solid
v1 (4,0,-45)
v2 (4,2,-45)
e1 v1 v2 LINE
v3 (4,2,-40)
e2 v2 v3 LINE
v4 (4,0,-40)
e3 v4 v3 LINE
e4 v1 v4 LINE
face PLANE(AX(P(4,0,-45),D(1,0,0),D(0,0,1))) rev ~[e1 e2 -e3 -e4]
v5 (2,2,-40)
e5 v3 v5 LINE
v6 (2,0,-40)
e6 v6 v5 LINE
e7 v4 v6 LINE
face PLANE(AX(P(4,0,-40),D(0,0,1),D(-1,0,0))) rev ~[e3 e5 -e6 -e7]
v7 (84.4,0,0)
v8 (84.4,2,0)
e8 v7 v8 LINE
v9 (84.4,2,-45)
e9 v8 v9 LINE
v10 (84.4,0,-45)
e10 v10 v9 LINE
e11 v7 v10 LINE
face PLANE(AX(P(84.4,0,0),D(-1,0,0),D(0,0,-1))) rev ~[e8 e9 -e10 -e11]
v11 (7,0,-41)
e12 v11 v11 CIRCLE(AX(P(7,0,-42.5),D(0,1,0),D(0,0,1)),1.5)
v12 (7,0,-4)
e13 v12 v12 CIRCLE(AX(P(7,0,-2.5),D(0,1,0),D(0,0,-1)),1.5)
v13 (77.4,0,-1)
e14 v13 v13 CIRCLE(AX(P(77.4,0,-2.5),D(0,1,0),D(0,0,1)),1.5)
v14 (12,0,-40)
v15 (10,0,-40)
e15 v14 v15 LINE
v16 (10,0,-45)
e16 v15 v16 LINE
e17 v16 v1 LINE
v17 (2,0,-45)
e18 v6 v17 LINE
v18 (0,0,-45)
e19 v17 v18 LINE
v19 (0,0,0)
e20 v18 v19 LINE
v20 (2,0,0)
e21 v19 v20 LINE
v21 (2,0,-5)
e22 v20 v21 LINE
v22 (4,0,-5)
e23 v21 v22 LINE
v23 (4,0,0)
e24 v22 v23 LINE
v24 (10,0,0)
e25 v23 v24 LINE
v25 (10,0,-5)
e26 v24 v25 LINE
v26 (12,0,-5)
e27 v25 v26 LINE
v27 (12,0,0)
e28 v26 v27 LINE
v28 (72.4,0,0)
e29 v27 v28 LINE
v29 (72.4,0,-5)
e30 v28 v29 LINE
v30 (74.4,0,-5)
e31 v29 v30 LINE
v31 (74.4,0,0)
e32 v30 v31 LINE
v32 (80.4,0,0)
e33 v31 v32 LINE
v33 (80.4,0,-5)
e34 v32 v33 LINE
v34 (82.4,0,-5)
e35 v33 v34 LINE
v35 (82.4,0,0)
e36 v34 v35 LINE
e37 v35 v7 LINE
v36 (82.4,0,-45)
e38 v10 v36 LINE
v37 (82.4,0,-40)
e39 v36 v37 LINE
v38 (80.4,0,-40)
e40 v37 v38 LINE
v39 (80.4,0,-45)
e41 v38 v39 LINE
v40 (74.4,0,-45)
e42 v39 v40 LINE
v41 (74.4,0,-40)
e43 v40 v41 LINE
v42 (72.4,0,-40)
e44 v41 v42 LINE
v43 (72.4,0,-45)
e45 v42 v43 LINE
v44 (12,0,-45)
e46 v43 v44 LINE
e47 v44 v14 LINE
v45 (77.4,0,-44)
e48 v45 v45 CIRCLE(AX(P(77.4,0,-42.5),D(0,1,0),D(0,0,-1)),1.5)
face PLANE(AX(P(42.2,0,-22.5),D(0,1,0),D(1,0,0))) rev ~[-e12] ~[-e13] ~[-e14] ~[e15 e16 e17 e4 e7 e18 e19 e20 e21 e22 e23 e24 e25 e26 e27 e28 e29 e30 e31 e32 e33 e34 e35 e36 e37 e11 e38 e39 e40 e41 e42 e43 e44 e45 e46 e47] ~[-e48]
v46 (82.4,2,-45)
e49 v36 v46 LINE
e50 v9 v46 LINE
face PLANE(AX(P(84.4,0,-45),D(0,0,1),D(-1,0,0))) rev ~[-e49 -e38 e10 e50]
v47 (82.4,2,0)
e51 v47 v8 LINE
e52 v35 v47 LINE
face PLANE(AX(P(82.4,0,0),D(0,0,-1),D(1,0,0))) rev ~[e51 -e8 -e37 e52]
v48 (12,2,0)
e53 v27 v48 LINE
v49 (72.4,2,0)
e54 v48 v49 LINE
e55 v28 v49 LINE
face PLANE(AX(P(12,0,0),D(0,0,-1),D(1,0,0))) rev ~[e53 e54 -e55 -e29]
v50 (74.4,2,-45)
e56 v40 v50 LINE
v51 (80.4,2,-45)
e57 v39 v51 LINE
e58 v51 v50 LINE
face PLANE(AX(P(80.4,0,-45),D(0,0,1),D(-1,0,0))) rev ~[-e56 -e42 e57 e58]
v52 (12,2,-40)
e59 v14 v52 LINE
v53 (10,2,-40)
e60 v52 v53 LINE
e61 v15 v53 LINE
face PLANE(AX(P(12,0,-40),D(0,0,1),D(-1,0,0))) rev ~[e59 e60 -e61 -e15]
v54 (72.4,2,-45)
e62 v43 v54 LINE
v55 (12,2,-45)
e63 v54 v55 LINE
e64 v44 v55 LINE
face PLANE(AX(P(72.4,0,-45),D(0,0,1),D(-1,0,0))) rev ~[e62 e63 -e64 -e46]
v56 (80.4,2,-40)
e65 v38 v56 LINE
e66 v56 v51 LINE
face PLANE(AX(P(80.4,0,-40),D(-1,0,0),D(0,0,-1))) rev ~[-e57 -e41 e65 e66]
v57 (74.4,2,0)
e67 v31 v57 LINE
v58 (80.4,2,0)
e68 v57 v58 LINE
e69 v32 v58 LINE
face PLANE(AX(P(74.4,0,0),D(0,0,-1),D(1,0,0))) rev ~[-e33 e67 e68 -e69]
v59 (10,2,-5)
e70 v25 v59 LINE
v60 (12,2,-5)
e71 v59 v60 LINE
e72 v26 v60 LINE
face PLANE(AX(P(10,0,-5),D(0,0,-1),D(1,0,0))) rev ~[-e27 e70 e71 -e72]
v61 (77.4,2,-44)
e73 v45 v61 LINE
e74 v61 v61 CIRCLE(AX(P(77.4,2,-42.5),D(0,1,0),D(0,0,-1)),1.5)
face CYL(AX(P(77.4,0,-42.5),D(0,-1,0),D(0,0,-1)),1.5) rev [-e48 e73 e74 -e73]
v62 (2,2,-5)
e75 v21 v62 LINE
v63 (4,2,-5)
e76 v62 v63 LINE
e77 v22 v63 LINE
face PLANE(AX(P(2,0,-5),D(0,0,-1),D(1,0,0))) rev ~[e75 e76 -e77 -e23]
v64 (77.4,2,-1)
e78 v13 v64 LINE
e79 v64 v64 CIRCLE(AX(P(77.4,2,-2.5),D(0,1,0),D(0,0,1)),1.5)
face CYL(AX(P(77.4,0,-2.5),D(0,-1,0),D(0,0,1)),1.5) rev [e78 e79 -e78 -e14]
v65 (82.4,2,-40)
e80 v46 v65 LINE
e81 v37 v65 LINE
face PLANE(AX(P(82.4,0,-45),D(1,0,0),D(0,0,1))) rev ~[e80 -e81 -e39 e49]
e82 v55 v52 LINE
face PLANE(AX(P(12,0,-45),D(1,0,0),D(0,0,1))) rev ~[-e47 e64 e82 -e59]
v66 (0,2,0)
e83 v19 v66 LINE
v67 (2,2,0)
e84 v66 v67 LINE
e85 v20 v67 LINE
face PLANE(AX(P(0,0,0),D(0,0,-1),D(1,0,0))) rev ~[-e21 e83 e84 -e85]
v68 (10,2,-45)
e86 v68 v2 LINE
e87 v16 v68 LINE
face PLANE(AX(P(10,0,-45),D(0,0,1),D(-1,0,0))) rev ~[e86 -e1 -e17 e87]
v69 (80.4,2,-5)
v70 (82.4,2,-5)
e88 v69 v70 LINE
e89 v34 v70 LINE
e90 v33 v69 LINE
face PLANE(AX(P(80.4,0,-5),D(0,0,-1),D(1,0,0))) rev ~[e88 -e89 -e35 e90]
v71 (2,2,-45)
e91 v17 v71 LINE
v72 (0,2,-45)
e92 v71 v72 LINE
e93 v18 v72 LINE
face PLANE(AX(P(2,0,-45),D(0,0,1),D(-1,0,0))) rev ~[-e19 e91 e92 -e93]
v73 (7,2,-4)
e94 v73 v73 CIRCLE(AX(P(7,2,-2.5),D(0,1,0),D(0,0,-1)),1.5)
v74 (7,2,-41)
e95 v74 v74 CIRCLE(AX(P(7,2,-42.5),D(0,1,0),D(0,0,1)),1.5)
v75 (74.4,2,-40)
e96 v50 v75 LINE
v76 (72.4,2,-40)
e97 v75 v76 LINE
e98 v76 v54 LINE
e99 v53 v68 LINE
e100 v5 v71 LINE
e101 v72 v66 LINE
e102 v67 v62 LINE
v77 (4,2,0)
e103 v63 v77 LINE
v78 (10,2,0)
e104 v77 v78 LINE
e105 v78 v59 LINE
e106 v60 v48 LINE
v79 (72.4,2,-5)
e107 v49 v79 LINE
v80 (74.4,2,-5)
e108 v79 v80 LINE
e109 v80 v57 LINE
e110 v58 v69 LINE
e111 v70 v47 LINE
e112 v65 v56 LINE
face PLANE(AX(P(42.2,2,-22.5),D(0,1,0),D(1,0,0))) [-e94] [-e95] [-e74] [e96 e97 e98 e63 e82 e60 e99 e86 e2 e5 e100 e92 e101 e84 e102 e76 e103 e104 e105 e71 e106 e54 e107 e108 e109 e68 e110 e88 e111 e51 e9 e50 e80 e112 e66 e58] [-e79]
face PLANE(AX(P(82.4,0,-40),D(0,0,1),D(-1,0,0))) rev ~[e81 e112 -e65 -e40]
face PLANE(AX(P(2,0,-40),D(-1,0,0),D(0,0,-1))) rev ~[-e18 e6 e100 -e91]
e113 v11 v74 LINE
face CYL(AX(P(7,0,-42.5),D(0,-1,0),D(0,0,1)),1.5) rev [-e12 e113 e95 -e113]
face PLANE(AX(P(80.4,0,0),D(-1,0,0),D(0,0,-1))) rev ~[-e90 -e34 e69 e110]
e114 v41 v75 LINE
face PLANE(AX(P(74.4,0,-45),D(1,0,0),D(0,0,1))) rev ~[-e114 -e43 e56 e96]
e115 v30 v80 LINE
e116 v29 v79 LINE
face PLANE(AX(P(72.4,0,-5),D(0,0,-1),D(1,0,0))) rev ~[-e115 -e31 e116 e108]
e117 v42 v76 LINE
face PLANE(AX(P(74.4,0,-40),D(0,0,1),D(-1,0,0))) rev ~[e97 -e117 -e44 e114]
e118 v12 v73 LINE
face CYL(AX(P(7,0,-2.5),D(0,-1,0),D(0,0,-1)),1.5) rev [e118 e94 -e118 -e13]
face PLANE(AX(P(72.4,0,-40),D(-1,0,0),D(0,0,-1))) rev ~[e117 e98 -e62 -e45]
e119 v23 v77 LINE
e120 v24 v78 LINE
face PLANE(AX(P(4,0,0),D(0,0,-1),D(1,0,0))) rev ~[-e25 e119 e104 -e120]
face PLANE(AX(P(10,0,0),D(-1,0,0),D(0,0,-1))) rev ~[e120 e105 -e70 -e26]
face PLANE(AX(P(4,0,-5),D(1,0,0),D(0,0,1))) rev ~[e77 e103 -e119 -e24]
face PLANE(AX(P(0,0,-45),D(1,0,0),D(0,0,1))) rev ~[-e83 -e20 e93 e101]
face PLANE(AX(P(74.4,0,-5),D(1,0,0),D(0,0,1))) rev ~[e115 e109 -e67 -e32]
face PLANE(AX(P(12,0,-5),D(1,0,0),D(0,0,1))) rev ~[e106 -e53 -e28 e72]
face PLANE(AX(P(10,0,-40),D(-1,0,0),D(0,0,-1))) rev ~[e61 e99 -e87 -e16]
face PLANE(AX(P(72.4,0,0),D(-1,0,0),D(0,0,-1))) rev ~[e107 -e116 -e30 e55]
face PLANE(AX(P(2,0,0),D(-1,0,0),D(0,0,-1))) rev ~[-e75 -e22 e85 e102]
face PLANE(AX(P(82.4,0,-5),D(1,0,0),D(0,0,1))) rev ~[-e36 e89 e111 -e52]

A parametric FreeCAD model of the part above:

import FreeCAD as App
import Part
import Sketcher
from FreeCAD import Vector


def add_polygon(sketch, points):
    """Adds a closed chain of lines whose ends are joined by coincident constraints."""
    first, n = sketch.GeometryCount, len(points)
    for a, b in zip(points, points[1:] + points[:1]):
        sketch.addGeometry(Part.LineSegment(App.Vector(*a, 0), App.Vector(*b, 0)), False)
    for i in range(n):
        sketch.addConstraint(Sketcher.Constraint("Coincident", first + i, 2, first + (i + 1) % n, 1))

doc = App.newDocument("Part")
body = doc.addObject("PartDesign::Body", "Body")

sketch1 = body.newObject("Sketcher::SketchObject", "Sketch")
sketch1.AttachmentSupport = (doc.getObject("XZ_Plane"), [""])
sketch1.MapMode = "FlatFace"
add_polygon(sketch1, [(0, 0), (2, 0), (2, -5), (4, -5), (4, 0), (10, 0), (10, -5), (12, -5), (12, 0), (72.4, 0), (72.4, -5), (74.4, -5), (74.4, 0), (80.4, 0), (80.4, -5), (82.4, -5), (82.4, 0), (84.4, 0), (84.4, -45), (82.4, -45), (82.4, -40), (80.4, -40), (80.4, -45), (74.4, -45), (74.4, -40), (72.4, -40), (72.4, -45), (12, -45), (12, -40), (10, -40), (10, -45), (4, -45), (4, -40), (2, -40), (2, -45), (0, -45)])
sketch1.addGeometry(Part.Circle(Vector(7, -2.5, 0), Vector(0, 0, 1), 1.5), False)
sketch1.addGeometry(Part.Circle(Vector(77.4, -2.5, 0), Vector(0, 0, 1), 1.5), False)
sketch1.addGeometry(Part.Circle(Vector(7, -42.5, 0), Vector(0, 0, 1), 1.5), False)
sketch1.addGeometry(Part.Circle(Vector(77.4, -42.5, 0), Vector(0, 0, 1), 1.5), False)
sketch1.addConstraint([
    Sketcher.Constraint("Horizontal", 0),
    Sketcher.Constraint("Vertical", 1),
    Sketcher.Constraint("Horizontal", 2),
    Sketcher.Constraint("Vertical", 3),
    Sketcher.Constraint("Horizontal", 4),
    Sketcher.Constraint("Vertical", 5),
    Sketcher.Constraint("Horizontal", 6),
    Sketcher.Constraint("Vertical", 7),
    Sketcher.Constraint("Horizontal", 8),
    Sketcher.Constraint("Vertical", 9),
    Sketcher.Constraint("Horizontal", 10),
    Sketcher.Constraint("Vertical", 11),
    Sketcher.Constraint("Horizontal", 12),
    Sketcher.Constraint("Vertical", 13),
    Sketcher.Constraint("Horizontal", 14),
    Sketcher.Constraint("Vertical", 15),
    Sketcher.Constraint("Horizontal", 16),
    Sketcher.Constraint("Vertical", 17),
    Sketcher.Constraint("Horizontal", 18),
    Sketcher.Constraint("Vertical", 19),
    Sketcher.Constraint("Horizontal", 20),
    Sketcher.Constraint("Vertical", 21),
    Sketcher.Constraint("Horizontal", 22),
    Sketcher.Constraint("Vertical", 23),
    Sketcher.Constraint("Horizontal", 24),
    Sketcher.Constraint("Vertical", 25),
    Sketcher.Constraint("Horizontal", 26),
    Sketcher.Constraint("Vertical", 27),
    Sketcher.Constraint("Horizontal", 28),
    Sketcher.Constraint("Vertical", 29),
    Sketcher.Constraint("Horizontal", 30),
    Sketcher.Constraint("Vertical", 31),
    Sketcher.Constraint("Horizontal", 32),
    Sketcher.Constraint("Vertical", 33),
    Sketcher.Constraint("Horizontal", 34),
    Sketcher.Constraint("Vertical", 35),
    Sketcher.Constraint("Coincident", 35, 2, -1, 1),
    Sketcher.Constraint("Equal", 36, 37),
    Sketcher.Constraint("Equal", 37, 38),
    Sketcher.Constraint("Equal", 38, 39),
    Sketcher.Constraint("PointOnObject", 3, 2, -1),
    Sketcher.Constraint("PointOnObject", 7, 2, -1),
    Sketcher.Constraint("PointOnObject", 11, 2, -1),
    Sketcher.Constraint("PointOnObject", 15, 2, -1),
    Sketcher.Constraint("Horizontal", 36, 3, 37, 3),
    Sketcher.Constraint("Horizontal", 38, 3, 39, 3),
    Sketcher.Constraint("Horizontal", 2, 2, 5, 2),
    Sketcher.Constraint("Horizontal", 6, 2, 9, 2),
    Sketcher.Constraint("Horizontal", 10, 2, 13, 2),
    Sketcher.Constraint("Horizontal", 18, 2, 21, 2),
    Sketcher.Constraint("Horizontal", 20, 2, 23, 2),
    Sketcher.Constraint("Horizontal", 22, 2, 25, 2),
    Sketcher.Constraint("Horizontal", 24, 2, 27, 2),
    Sketcher.Constraint("Horizontal", 26, 2, 29, 2),
    Sketcher.Constraint("Horizontal", 28, 2, 31, 2),
    Sketcher.Constraint("Horizontal", 30, 2, 33, 2),
    Sketcher.Constraint("Vertical", 36, 3, 38, 3),
    Sketcher.Constraint("Vertical", 37, 3, 39, 3),
    Sketcher.Constraint("Vertical", 15, 2, 18, 2),
    Sketcher.Constraint("Vertical", 13, 2, 20, 2),
    Sketcher.Constraint("Vertical", 11, 2, 22, 2),
    Sketcher.Constraint("Vertical", 9, 2, 24, 2),
    Sketcher.Constraint("Vertical", 7, 2, 26, 2),
    Sketcher.Constraint("Vertical", 5, 2, 28, 2),
    Sketcher.Constraint("Vertical", 3, 2, 30, 2),
    Sketcher.Constraint("Vertical", 1, 2, 32, 2),
    Sketcher.Constraint("Equal", 0, 2),
    Sketcher.Constraint("Equal", 2, 6),
    Sketcher.Constraint("Equal", 6, 10),
    Sketcher.Constraint("Equal", 4, 12),
    Sketcher.Constraint("Equal", 10, 14),
    Sketcher.Constraint("Equal", 14, 16),
    Sketcher.Constraint("Equal", 15, 19),
    Sketcher.Constraint("Diameter", 36, 3.0),
    Sketcher.Constraint("DistanceX", 0, 1, 0, 2, 2.0),
    Sketcher.Constraint("DistanceX", 4, 1, 4, 2, 6.0),
    Sketcher.Constraint("DistanceY", 1, 2, 1, 1, 5.0),
    Sketcher.Constraint("DistanceY", 17, 2, 17, 1, 45.0),
    Sketcher.Constraint("DistanceX", 8, 1, 8, 2, 60.4),
    Sketcher.Constraint("DistanceX", -1, 1, 36, 3, 7.0),
    Sketcher.Constraint("DistanceY", 38, 3, 36, 3, 40.0),
    Sketcher.Constraint("DistanceX", 8, 2, 37, 3, 5.0),
    Sketcher.Constraint("DistanceY", 36, 3, -1, 1, 2.5),
])
pad1 = body.newObject("PartDesign::Pad", "Pad")
pad1.Profile = sketch1
pad1.Length = 2
pad1.Reversed = True

doc.recompute()
